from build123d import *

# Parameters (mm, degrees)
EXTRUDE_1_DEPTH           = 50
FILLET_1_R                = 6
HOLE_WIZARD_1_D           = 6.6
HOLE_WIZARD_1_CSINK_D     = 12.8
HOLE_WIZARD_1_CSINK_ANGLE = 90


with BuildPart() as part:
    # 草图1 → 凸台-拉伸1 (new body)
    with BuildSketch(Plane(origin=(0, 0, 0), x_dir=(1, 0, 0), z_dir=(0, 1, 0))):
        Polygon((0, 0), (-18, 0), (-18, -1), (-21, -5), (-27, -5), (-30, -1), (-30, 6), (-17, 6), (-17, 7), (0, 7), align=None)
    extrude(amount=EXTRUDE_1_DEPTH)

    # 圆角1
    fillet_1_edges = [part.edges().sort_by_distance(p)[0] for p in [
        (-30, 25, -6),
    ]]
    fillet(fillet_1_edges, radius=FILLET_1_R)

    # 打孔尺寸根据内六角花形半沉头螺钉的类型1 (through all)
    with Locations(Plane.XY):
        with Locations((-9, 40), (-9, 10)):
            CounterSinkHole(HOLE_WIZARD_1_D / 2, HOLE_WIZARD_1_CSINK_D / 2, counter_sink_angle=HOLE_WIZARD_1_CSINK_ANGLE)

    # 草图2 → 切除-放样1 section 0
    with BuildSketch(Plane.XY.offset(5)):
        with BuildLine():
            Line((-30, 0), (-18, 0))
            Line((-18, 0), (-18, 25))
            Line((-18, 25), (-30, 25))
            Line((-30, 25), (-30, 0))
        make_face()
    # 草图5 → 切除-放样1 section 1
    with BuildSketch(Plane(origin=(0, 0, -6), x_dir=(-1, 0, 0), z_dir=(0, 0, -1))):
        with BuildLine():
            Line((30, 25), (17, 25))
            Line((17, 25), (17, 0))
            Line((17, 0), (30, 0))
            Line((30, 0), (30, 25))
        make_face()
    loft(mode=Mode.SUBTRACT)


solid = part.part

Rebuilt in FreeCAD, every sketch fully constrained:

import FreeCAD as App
import Part
import Sketcher
from FreeCAD import Vector


def edges_at(feature, points):
    """Names of the edges that pass closest to the given points."""
    edges = feature.Shape.Edges
    near = lambda p: min(range(len(edges)), key=lambda i: edges[i].distToShape(Part.Vertex(*p))[0])
    return sorted({f"Edge{near(p) + 1}" for p in points})

doc = App.newDocument("Part")
body = doc.addObject("PartDesign::Body", "Body")

sketch1 = body.newObject("Sketcher::SketchObject", "Sketch")
sketch1.AttachmentSupport = (doc.getObject("XZ_Plane"), [""])
sketch1.MapMode = "FlatFace"
sketch1.addGeometry([
    Part.LineSegment(Vector(-18, 0, 0), Vector(0, 0, 0)),
    Part.LineSegment(Vector(0, 0, 0), Vector(0, -7, 0)),
    Part.LineSegment(Vector(0, -7, 0), Vector(-17, -7, 0)),
    Part.LineSegment(Vector(-17, -7, 0), Vector(-17, -6, 0)),
    Part.LineSegment(Vector(-17, -6, 0), Vector(-30, -6, 0)),
    Part.LineSegment(Vector(-30, -6, 0), Vector(-30, 1, 0)),
    Part.LineSegment(Vector(-30, 1, 0), Vector(-27, 5, 0)),
    Part.LineSegment(Vector(-27, 5, 0), Vector(-21, 5, 0)),
    Part.LineSegment(Vector(-21, 5, 0), Vector(-18, 1, 0)),
    Part.LineSegment(Vector(-18, 1, 0), Vector(-18, 0, 0)),
], False)
sketch1.addConstraint([
    Sketcher.Constraint("Coincident", 0, 2, 1, 1),
    Sketcher.Constraint("Coincident", 1, 2, 2, 1),
    Sketcher.Constraint("Coincident", 2, 2, 3, 1),
    Sketcher.Constraint("Coincident", 3, 2, 4, 1),
    Sketcher.Constraint("Coincident", 4, 2, 5, 1),
    Sketcher.Constraint("Coincident", 5, 2, 6, 1),
    Sketcher.Constraint("Coincident", 6, 2, 7, 1),
    Sketcher.Constraint("Coincident", 7, 2, 8, 1),
    Sketcher.Constraint("Coincident", 8, 2, 9, 1),
    Sketcher.Constraint("Coincident", 9, 2, 0, 1),
    Sketcher.Constraint("Horizontal", 0),
    Sketcher.Constraint("Vertical", 1),
    Sketcher.Constraint("Horizontal", 2),
    Sketcher.Constraint("Vertical", 3),
    Sketcher.Constraint("Horizontal", 4),
    Sketcher.Constraint("Vertical", 5),
    Sketcher.Constraint("Horizontal", 7),
    Sketcher.Constraint("Vertical", 9),
    Sketcher.Constraint("Coincident", 0, 2, -1, 1),
    Sketcher.Constraint("Horizontal", 5, 2, 8, 2),
    Sketcher.Constraint("Equal", 1, 5),
    Sketcher.Constraint("Equal", 6, 8),
    Sketcher.Constraint("DistanceX", 0, 1, 0, 2, 18.0),
    Sketcher.Constraint("DistanceX", 2, 2, 2, 1, 17.0),
    Sketcher.Constraint("DistanceX", 4, 2, 4, 1, 13.0),
    Sketcher.Constraint("DistanceX", 7, 1, 7, 2, 6.0),
    Sketcher.Constraint("DistanceY", 1, 2, 1, 1, 7.0),
    Sketcher.Constraint("DistanceY", 3, 1, 3, 2, 1.0),
    Sketcher.Constraint("Distance", 6, 5.0),
])
pad1 = body.newObject("PartDesign::Pad", "Pad")
pad1.Profile = sketch1
pad1.Length = 50
pad1.Reversed = True
doc.recompute()

fillet = body.newObject("PartDesign::Fillet", "Fillet")
fillet.Base = (pad1, edges_at(pad1, [(-30, 25, -6)]))
fillet.Radius = 6

sketch2 = body.newObject("Sketcher::SketchObject", "Sketch001")
sketch2.AttachmentSupport = (doc.getObject("XY_Plane"), [""])
sketch2.MapMode = "FlatFace"
sketch2.addGeometry([
    Part.Circle(Vector(-9, 40, 0), Vector(0, 0, 1), 3.3),
    Part.Circle(Vector(-9, 10, 0), Vector(0, 0, 1), 3.3),
], False)
sketch2.addConstraint([
    Sketcher.Constraint("Equal", 0, 1),
    Sketcher.Constraint("Vertical", 0, 3, 1, 3),
    Sketcher.Constraint("Diameter", 0, 6.6),
    Sketcher.Constraint("DistanceX", 0, 3, -1, 1, 9.0),
    Sketcher.Constraint("DistanceY", -1, 1, 0, 3, 40.0),
    Sketcher.Constraint("DistanceY", -1, 1, 1, 3, 10.0),
])
doc.recompute()
hole = body.newObject("PartDesign::Hole", "Hole")
hole.Profile = sketch2
hole.ThreadType = "None"
hole.Diameter = 6.6
hole.DepthType = "ThroughAll"
hole.HoleCutType = "Countersink"
hole.HoleCutDiameter = 12.8
hole.HoleCutCountersinkAngle = 90

sketch3 = body.newObject("Sketcher::SketchObject", "Sketch002")
sketch3.AttachmentSupport = (doc.getObject("XY_Plane"), [""])
sketch3.MapMode = "FlatFace"
sketch3.AttachmentOffset = App.Placement(Vector(0, 0, 5), App.Rotation())
sketch3.addGeometry([
    Part.LineSegment(Vector(-30, 0, 0), Vector(-18, 0, 0)),
    Part.LineSegment(Vector(-18, 0, 0), Vector(-18, 25, 0)),
    Part.LineSegment(Vector(-18, 25, 0), Vector(-30, 25, 0)),
    Part.LineSegment(Vector(-30, 25, 0), Vector(-30, 0, 0)),
], False)
sketch3.addConstraint([
    Sketcher.Constraint("Coincident", 0, 2, 1, 1),
    Sketcher.Constraint("Coincident", 1, 2, 2, 1),
    Sketcher.Constraint("Coincident", 2, 2, 3, 1),
    Sketcher.Constraint("Coincident", 3, 2, 0, 1),
    Sketcher.Constraint("Horizontal", 0),
    Sketcher.Constraint("Vertical", 1),
    Sketcher.Constraint("Horizontal", 2),
    Sketcher.Constraint("Vertical", 3),
    Sketcher.Constraint("PointOnObject", 0, 2, -1),
    Sketcher.Constraint("DistanceX", 0, 1, 0, 2, 12.0),
    Sketcher.Constraint("DistanceY", 1, 1, 1, 2, 25.0),
    Sketcher.Constraint("DistanceX", 0, 2, -1, 1, 18.0),
])

sketch4 = body.newObject("Sketcher::SketchObject", "Sketch003")
sketch4.AttachmentSupport = (doc.getObject("XY_Plane"), [""])
sketch4.MapMode = "FlatFace"
sketch4.AttachmentOffset = App.Placement(Vector(0, 0, -6), App.Rotation())
sketch4.addGeometry([
    Part.LineSegment(Vector(-30, 25, 0), Vector(-17, 25, 0)),
    Part.LineSegment(Vector(-17, 25, 0), Vector(-17, 0, 0)),
    Part.LineSegment(Vector(-17, 0, 0), Vector(-30, 0, 0)),
    Part.LineSegment(Vector(-30, 0, 0), Vector(-30, 25, 0)),
], False)
sketch4.addConstraint([
    Sketcher.Constraint("Coincident", 0, 2, 1, 1),
    Sketcher.Constraint("Coincident", 1, 2, 2, 1),
    Sketcher.Constraint("Coincident", 2, 2, 3, 1),
    Sketcher.Constraint("Coincident", 3, 2, 0, 1),
    Sketcher.Constraint("Horizontal", 0),
    Sketcher.Constraint("Vertical", 1),
    Sketcher.Constraint("Horizontal", 2),
    Sketcher.Constraint("Vertical", 3),
    Sketcher.Constraint("PointOnObject", 1, 2, -1),
    Sketcher.Constraint("DistanceX", 0, 1, 0, 2, 13.0),
    Sketcher.Constraint("DistanceY", 1, 2, 1, 1, 25.0),
    Sketcher.Constraint("DistanceX", 0, 2, -1, 1, 17.0),
])

subtractiveloft = body.newObject("PartDesign::SubtractiveLoft", "SubtractiveLoft")
subtractiveloft.Profile = sketch3
subtractiveloft.Sections = [sketch4]

doc.recompute()
